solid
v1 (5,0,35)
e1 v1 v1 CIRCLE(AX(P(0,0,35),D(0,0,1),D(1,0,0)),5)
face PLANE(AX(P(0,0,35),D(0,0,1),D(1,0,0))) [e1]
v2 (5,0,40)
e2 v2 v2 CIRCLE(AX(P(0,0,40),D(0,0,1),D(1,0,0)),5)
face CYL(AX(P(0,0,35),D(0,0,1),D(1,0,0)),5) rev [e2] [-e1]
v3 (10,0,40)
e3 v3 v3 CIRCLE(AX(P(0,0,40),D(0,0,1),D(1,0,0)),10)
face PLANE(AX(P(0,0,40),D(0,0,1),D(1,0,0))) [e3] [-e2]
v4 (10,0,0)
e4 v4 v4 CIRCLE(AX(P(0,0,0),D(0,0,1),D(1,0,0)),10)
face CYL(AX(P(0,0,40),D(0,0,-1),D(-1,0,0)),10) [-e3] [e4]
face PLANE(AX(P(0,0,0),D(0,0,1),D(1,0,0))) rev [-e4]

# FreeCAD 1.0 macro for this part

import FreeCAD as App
import Part
import Sketcher

doc = App.newDocument("Part")
body = doc.addObject("PartDesign::Body", "Body")

# Sketch on XY plane
sketch1 = doc.addObject("Sketcher::SketchObject", "Sketch")
body.addObject(sketch1)
sketch1.AttachmentSupport = (doc.XY_Plane, [""])
sketch1.MapMode = "FlatFace"
sketch1.addGeometry(Part.Circle(App.Vector(0, 0, 0), App.Vector(0, 0, 1), 10), False)
sketch1.addConstraint(Sketcher.Constraint("Coincident", 0, 3, -1, 1))
sketch1.addConstraint(Sketcher.Constraint("Diameter", 0, 20.0))
pad1 = doc.addObject("PartDesign::Pad", "Pad")
body.addObject(pad1)
pad1.Profile = sketch1
pad1.Length = 40

# Sketch on XY plane
sketch2 = doc.addObject("Sketcher::SketchObject", "Sketch001")
body.addObject(sketch2)
sketch2.AttachmentSupport = (doc.XY_Plane, [""])
sketch2.MapMode = "FlatFace"
sketch2.AttachmentOffset = App.Placement(App.Vector(0, 0, 40), App.Rotation())
sketch2.addGeometry(Part.Circle(App.Vector(0, 0, 0), App.Vector(0, 0, 1), 5), False)
sketch2.addConstraint(Sketcher.Constraint("Coincident", 0, 3, -1, 1))
sketch2.addConstraint(Sketcher.Constraint("Diameter", 0, 10.0))
pocket1 = doc.addObject("PartDesign::Pocket", "Pocket")
body.addObject(pocket1)
pocket1.Profile = sketch2
pocket1.Length = 5

doc.recompute()
